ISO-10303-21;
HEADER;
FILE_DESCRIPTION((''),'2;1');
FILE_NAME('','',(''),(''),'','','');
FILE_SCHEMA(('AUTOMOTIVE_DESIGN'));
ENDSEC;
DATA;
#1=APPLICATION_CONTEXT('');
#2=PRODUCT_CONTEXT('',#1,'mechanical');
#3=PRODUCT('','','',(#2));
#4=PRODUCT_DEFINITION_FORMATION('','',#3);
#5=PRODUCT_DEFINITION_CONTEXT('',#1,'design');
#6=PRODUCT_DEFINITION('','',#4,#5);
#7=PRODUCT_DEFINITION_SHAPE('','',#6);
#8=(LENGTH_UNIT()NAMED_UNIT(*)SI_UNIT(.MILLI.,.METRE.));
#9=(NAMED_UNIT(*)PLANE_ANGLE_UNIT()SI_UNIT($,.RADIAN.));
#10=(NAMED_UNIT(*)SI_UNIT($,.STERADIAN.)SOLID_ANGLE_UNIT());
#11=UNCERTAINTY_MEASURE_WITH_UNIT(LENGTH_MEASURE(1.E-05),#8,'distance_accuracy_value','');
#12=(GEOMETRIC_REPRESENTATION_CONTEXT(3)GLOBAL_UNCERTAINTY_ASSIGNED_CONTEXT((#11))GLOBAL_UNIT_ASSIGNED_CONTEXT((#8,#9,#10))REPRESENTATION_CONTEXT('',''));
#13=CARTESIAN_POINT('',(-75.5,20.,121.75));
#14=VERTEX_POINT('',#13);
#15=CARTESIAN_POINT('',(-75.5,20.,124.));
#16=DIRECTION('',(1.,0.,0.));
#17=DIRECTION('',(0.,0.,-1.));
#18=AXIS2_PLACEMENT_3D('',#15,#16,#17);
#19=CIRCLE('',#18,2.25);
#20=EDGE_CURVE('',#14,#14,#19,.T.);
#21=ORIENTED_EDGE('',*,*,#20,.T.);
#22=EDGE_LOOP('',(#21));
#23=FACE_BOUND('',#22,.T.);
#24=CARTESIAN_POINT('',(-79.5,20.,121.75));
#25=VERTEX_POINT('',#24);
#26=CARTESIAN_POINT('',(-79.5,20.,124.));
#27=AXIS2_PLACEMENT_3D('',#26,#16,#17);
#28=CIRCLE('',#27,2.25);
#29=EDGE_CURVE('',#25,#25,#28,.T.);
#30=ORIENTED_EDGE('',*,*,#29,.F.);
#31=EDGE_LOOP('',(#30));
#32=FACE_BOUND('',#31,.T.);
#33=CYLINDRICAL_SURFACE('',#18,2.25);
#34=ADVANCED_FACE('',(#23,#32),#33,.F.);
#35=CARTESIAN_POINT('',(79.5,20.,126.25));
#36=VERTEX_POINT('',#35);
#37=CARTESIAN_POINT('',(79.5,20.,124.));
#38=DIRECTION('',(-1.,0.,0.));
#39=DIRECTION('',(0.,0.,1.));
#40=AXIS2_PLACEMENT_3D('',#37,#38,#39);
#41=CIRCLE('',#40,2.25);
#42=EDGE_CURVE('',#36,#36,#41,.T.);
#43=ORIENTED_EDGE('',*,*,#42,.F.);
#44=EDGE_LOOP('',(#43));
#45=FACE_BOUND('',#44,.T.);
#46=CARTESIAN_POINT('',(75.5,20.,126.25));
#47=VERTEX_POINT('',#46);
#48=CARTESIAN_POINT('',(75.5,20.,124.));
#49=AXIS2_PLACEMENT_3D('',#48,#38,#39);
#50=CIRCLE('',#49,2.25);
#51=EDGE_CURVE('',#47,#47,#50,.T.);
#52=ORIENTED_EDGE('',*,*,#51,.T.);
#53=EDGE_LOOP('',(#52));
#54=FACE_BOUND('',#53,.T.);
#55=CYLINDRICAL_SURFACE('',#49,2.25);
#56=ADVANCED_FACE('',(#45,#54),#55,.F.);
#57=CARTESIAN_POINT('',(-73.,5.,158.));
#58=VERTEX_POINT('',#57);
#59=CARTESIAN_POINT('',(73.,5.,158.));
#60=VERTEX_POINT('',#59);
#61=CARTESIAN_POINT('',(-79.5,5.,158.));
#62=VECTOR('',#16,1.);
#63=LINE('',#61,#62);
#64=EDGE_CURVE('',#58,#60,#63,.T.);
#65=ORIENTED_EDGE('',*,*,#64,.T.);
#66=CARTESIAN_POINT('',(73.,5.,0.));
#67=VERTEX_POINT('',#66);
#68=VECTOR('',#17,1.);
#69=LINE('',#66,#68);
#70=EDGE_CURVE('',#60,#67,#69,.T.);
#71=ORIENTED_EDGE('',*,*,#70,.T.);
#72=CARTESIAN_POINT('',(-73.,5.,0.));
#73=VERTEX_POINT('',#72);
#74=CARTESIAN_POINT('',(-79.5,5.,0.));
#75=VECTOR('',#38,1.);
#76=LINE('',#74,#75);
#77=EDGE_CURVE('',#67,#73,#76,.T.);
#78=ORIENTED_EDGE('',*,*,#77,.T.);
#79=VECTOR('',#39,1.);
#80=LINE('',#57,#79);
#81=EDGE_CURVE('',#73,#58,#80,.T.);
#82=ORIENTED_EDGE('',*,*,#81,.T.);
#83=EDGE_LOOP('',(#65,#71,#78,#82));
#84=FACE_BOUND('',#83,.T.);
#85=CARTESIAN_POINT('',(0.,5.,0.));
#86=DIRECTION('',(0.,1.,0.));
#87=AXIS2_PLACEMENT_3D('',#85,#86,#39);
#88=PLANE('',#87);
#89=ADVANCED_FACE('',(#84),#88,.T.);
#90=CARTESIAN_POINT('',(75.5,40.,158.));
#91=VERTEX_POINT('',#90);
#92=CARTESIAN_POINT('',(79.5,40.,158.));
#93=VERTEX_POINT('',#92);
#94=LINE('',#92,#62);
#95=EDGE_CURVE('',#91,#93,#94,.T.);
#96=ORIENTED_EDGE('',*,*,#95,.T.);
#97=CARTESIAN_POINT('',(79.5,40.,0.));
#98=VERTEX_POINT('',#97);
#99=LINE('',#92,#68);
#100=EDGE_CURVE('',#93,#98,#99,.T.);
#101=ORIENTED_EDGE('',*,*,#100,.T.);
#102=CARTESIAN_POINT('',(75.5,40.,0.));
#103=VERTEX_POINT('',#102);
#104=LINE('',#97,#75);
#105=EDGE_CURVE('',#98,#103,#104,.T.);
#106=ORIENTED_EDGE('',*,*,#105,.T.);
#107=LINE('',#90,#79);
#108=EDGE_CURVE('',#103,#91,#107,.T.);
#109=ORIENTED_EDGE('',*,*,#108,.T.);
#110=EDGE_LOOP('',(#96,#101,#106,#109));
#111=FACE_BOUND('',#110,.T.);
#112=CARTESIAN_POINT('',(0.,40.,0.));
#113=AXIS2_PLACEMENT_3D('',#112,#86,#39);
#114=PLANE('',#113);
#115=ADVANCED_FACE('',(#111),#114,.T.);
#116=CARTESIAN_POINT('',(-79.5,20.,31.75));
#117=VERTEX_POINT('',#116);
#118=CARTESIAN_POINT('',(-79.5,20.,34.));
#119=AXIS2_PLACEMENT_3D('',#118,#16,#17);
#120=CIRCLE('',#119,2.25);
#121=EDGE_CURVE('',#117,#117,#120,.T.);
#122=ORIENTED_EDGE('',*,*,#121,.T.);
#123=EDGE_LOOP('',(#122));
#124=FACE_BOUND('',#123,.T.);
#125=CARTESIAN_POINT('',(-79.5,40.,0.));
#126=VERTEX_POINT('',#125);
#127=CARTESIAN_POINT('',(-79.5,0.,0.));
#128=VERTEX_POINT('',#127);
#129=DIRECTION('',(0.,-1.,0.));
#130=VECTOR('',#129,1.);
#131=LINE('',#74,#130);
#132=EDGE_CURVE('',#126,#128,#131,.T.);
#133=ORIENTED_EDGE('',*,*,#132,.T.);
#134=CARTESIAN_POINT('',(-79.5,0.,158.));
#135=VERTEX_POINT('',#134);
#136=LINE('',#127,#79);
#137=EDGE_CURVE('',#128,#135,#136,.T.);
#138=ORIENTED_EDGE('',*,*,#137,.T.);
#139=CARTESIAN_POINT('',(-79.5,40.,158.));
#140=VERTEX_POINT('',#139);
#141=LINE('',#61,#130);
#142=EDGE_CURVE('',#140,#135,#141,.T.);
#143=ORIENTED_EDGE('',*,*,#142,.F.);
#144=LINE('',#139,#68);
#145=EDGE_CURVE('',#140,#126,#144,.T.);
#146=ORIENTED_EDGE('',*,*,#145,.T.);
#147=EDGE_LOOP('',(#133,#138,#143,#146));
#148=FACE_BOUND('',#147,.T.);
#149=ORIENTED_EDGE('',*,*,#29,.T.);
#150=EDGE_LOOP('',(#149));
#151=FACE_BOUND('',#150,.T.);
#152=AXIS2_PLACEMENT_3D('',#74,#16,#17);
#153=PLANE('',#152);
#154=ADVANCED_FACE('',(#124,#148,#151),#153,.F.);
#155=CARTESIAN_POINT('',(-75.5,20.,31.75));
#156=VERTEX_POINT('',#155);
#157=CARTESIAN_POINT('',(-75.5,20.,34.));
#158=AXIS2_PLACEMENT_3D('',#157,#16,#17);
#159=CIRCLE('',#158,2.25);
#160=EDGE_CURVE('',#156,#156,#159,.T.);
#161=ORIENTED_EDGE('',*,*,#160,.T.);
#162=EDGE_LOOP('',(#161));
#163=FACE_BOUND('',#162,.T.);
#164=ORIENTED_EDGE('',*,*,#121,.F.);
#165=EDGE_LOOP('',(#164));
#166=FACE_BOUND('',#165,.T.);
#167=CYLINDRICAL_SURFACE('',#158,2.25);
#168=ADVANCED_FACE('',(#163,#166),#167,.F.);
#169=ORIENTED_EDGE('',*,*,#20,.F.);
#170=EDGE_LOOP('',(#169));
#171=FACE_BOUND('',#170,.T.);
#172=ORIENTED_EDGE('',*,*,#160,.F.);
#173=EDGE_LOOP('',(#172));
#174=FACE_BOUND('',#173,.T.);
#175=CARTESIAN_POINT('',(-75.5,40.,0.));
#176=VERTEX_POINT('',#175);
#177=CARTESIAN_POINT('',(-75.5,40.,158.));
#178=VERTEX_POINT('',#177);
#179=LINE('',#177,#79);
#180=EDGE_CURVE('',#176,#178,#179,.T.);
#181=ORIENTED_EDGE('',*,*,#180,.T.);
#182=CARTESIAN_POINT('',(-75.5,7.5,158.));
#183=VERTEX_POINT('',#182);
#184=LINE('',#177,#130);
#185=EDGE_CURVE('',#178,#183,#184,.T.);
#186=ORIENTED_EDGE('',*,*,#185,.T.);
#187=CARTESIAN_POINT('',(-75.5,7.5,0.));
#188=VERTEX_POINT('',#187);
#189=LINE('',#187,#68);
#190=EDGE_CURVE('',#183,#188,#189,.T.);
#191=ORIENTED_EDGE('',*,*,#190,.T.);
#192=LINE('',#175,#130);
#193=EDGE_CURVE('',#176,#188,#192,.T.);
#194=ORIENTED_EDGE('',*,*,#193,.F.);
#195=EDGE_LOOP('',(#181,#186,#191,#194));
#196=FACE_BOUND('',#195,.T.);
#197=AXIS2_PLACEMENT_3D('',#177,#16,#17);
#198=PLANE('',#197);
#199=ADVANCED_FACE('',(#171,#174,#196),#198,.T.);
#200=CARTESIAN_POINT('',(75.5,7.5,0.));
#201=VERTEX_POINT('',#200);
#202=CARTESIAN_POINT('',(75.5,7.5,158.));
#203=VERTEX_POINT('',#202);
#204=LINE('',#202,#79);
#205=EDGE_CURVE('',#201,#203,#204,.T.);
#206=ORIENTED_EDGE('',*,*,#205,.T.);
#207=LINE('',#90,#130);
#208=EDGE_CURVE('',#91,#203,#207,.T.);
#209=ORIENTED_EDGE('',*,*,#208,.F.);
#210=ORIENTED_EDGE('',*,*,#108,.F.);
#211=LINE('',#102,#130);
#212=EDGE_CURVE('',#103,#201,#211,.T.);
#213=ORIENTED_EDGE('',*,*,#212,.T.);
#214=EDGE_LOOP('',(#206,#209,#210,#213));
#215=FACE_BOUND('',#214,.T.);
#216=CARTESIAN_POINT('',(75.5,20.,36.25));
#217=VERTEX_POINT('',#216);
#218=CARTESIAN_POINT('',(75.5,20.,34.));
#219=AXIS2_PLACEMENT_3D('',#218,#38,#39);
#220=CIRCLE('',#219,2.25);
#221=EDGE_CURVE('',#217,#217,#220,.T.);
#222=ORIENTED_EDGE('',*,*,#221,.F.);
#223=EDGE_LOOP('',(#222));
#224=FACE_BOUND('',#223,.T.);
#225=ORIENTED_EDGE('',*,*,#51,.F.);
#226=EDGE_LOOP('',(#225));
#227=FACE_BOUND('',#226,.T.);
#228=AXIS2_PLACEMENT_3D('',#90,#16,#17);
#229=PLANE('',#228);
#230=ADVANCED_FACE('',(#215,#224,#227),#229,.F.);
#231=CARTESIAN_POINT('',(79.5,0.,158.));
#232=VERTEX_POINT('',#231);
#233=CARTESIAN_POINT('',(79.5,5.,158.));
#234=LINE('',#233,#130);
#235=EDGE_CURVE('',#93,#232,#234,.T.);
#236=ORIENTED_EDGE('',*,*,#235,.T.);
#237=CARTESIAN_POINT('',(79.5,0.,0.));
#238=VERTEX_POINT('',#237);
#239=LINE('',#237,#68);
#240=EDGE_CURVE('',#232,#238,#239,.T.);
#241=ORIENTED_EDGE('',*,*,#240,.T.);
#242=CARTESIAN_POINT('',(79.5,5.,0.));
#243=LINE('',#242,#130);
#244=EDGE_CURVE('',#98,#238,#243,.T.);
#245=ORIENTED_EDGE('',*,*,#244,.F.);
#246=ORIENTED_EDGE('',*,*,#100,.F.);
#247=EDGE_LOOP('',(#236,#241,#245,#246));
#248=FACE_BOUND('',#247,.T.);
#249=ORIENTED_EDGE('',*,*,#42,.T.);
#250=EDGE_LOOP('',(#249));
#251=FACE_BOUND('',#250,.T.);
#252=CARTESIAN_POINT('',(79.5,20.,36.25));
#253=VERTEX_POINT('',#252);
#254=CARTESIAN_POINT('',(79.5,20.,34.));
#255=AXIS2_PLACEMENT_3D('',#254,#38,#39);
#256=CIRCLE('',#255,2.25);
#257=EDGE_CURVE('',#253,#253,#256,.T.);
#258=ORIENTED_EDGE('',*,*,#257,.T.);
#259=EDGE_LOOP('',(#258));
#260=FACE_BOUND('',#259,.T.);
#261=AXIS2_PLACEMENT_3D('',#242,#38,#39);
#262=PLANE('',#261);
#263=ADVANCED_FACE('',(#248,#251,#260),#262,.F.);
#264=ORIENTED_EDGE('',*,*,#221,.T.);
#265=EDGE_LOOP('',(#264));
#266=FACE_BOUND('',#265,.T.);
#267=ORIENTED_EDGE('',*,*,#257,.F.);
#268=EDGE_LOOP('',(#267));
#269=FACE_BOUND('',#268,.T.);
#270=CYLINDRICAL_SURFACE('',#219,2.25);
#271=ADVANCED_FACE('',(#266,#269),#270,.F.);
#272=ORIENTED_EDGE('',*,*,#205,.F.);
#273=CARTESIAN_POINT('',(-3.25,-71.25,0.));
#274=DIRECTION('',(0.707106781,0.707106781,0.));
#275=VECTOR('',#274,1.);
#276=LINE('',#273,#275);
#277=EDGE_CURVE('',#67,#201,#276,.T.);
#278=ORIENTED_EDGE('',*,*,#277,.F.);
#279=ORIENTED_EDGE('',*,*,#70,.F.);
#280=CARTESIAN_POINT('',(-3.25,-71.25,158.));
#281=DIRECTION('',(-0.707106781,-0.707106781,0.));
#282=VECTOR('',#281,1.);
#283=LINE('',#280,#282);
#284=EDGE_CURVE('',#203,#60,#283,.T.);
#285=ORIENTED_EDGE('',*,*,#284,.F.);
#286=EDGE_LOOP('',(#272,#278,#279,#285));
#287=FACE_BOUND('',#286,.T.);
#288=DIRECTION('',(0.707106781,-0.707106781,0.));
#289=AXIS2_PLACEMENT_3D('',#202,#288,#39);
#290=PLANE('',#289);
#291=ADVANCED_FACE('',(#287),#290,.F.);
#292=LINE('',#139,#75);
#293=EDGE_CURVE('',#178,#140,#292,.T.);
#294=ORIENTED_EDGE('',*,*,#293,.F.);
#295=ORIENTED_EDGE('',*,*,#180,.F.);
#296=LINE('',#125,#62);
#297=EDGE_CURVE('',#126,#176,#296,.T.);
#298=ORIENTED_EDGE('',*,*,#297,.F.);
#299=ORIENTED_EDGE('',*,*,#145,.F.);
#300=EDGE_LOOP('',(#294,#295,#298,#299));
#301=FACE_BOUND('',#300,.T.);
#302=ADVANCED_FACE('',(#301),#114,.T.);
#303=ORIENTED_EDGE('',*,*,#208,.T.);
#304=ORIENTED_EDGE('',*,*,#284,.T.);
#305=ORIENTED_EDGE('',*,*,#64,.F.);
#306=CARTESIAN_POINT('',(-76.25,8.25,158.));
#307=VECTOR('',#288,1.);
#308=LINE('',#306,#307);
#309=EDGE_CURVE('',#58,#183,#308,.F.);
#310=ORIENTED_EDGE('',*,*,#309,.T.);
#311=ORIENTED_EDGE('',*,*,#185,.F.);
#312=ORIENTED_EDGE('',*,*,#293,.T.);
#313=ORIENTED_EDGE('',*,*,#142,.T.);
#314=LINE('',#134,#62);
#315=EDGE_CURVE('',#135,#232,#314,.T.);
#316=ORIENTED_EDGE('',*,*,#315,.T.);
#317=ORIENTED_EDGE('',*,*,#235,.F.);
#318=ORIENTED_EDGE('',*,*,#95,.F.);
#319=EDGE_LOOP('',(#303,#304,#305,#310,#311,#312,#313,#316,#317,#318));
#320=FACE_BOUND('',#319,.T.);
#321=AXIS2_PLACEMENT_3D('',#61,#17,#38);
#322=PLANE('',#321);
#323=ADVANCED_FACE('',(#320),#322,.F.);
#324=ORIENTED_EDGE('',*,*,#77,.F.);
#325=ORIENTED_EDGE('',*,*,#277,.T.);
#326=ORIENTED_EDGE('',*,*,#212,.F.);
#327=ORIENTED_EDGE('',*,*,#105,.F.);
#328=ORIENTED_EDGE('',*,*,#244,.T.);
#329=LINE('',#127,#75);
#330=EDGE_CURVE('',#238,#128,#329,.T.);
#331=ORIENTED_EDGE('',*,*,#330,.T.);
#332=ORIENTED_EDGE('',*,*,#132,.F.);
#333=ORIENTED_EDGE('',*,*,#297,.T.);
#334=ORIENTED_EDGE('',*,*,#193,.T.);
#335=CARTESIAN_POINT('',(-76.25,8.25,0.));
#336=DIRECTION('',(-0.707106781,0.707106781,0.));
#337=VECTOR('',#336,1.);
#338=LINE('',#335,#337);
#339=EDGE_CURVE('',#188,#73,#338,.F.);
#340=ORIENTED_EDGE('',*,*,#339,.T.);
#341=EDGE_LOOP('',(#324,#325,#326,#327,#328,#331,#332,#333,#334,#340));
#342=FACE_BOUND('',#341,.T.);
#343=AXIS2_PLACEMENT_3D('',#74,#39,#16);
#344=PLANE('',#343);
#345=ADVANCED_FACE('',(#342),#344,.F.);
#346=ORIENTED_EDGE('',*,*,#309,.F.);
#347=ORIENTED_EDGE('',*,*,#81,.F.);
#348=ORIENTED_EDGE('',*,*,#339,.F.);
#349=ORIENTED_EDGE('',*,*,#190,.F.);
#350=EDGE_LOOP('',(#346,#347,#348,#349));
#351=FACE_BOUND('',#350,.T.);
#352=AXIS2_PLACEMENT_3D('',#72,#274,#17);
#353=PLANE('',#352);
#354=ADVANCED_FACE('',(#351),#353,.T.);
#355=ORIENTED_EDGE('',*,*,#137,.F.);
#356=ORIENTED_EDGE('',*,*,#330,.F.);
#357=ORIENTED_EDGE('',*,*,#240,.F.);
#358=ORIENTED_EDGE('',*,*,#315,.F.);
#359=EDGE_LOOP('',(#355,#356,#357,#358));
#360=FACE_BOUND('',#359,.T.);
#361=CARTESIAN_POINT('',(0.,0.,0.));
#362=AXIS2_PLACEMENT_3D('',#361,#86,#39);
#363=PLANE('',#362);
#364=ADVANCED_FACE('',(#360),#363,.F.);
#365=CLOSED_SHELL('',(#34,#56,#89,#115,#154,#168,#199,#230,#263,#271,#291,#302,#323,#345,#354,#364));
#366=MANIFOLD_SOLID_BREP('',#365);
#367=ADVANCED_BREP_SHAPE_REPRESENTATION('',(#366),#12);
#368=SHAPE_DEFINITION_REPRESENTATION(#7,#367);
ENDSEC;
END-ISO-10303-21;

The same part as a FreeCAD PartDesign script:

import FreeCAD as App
import Part
import Sketcher

V = App.Vector


def edges_at(feature, points):
    """Names of the edges that pass closest to the given points."""
    edges = feature.Shape.Edges
    near = lambda p: min(range(len(edges)), key=lambda i: edges[i].distToShape(Part.Vertex(*p))[0])
    return sorted({f"Edge{near(p) + 1}" for p in points})

doc = App.newDocument("Part")
body = doc.addObject("PartDesign::Body", "Body")

# Sketch on XZ plane
sketch1 = doc.addObject("Sketcher::SketchObject", "Sketch")
body.addObject(sketch1)
sketch1.AttachmentSupport = (doc.XZ_Plane, [""])
sketch1.MapMode = "FlatFace"
sketch1.addGeometry([
    Part.LineSegment(V(-80, 0, 0), V(-80, 158, 0)),
    Part.LineSegment(V(-80, 158, 0), V(80, 158, 0)),
    Part.LineSegment(V(80, 158, 0), V(80, 0, 0)),
    Part.LineSegment(V(80, 0, 0), V(-80, 0, 0)),
], False)
sketch1.addConstraint([
    Sketcher.Constraint("Coincident", 0, 2, 1, 1),
    Sketcher.Constraint("Coincident", 1, 2, 2, 1),
    Sketcher.Constraint("Coincident", 2, 2, 3, 1),
    Sketcher.Constraint("Coincident", 3, 2, 0, 1),
    Sketcher.Constraint("Vertical", 0),
    Sketcher.Constraint("Horizontal", 1),
    Sketcher.Constraint("Vertical", 2),
    Sketcher.Constraint("Horizontal", 3),
    Sketcher.Constraint("Symmetric", 2, 2, 3, 2, -1, 1),
    Sketcher.Constraint("DistanceX", 1, 1, 1, 2, 159.0),
    Sketcher.Constraint("DistanceY", 0, 1, 0, 2, 158.0),
])
pad1 = doc.addObject("PartDesign::Pad", "Pad")
body.addObject(pad1)
pad1.Profile = sketch1
pad1.Length = 5
pad1.Reversed = True

# Sketch on XZ plane
sketch2 = doc.addObject("Sketcher::SketchObject", "Sketch001")
body.addObject(sketch2)
sketch2.AttachmentSupport = (doc.XZ_Plane, [""])
sketch2.MapMode = "FlatFace"
sketch2.AttachmentOffset = App.Placement(V(0, 0, -5), App.Rotation())
sketch2.addGeometry([
    Part.LineSegment(V(75.5, 0, 0), V(75.5, 158, 0)),
    Part.LineSegment(V(75.5, 158, 0), V(79.5, 158, 0)),
    Part.LineSegment(V(79.5, 158, 0), V(79.5, 0, 0)),
    Part.LineSegment(V(79.5, 0, 0), V(75.5, 0, 0)),
], False)
sketch2.addConstraint([
    Sketcher.Constraint("Coincident", 0, 2, 1, 1),
    Sketcher.Constraint("Coincident", 1, 2, 2, 1),
    Sketcher.Constraint("Coincident", 2, 2, 3, 1),
    Sketcher.Constraint("Coincident", 3, 2, 0, 1),
    Sketcher.Constraint("Vertical", 0),
    Sketcher.Constraint("Horizontal", 1),
    Sketcher.Constraint("Vertical", 2),
    Sketcher.Constraint("Horizontal", 3),
    Sketcher.Constraint("PointOnObject", 2, 2, -1),
    Sketcher.Constraint("DistanceX", 1, 1, 1, 2, 4.0),
    Sketcher.Constraint("DistanceY", 0, 1, 0, 2, 158.0),
    Sketcher.Constraint("DistanceX", -1, 1, 0, 2, 75.5),
])
pad2 = doc.addObject("PartDesign::Pad", "Pad001")
body.addObject(pad2)
pad2.Profile = sketch2
pad2.Length = 35
pad2.Reversed = True

# Sketch on YZ plane
sketch3 = doc.addObject("Sketcher::SketchObject", "Sketch002")
body.addObject(sketch3)
sketch3.AttachmentSupport = (doc.YZ_Plane, [""])
sketch3.MapMode = "FlatFace"
sketch3.AttachmentOffset = App.Placement(V(0, 0, 75.5), App.Rotation())
sketch3.addGeometry([
    Part.Circle(V(20, 124, 0), V(0, 0, 1), 2.2),
    Part.Circle(V(20, 34, 0), V(0, 0, 1), 2.2),
], False)
sketch3.addConstraint([
    Sketcher.Constraint("Equal", 0, 1),
    Sketcher.Constraint("Vertical", 0, 3, 1, 3),
    Sketcher.Constraint("Diameter", 0, 4.5),
    Sketcher.Constraint("DistanceX", -1, 1, 0, 3, 20.0),
    Sketcher.Constraint("DistanceY", -1, 1, 0, 3, 124.0),
    Sketcher.Constraint("DistanceY", -1, 1, 1, 3, 34.0),
])
doc.recompute()
hole = doc.addObject("PartDesign::Hole", "Hole")
body.addObject(hole)
hole.Profile = sketch3
hole.ThreadType = "None"
hole.Diameter = 4.5
hole.DepthType = "ThroughAll"
hole.Reversed = True
doc.recompute()

mirrored = doc.addObject("PartDesign::Mirrored", "Mirrored")
body.addObject(mirrored)
mirrored.Originals = [pad2, hole]
mirrored.MirrorPlane = (doc.YZ_Plane, [""])
body.Tip = mirrored
doc.recompute()

chamfer = doc.addObject("PartDesign::Chamfer", "Chamfer")
body.addObject(chamfer)
chamfer.Base = (mirrored, edges_at(mirrored, [(75.5, 5, 79), (-75.5, 5, 79)]))
chamfer.Size = 2.5

doc.recompute()
